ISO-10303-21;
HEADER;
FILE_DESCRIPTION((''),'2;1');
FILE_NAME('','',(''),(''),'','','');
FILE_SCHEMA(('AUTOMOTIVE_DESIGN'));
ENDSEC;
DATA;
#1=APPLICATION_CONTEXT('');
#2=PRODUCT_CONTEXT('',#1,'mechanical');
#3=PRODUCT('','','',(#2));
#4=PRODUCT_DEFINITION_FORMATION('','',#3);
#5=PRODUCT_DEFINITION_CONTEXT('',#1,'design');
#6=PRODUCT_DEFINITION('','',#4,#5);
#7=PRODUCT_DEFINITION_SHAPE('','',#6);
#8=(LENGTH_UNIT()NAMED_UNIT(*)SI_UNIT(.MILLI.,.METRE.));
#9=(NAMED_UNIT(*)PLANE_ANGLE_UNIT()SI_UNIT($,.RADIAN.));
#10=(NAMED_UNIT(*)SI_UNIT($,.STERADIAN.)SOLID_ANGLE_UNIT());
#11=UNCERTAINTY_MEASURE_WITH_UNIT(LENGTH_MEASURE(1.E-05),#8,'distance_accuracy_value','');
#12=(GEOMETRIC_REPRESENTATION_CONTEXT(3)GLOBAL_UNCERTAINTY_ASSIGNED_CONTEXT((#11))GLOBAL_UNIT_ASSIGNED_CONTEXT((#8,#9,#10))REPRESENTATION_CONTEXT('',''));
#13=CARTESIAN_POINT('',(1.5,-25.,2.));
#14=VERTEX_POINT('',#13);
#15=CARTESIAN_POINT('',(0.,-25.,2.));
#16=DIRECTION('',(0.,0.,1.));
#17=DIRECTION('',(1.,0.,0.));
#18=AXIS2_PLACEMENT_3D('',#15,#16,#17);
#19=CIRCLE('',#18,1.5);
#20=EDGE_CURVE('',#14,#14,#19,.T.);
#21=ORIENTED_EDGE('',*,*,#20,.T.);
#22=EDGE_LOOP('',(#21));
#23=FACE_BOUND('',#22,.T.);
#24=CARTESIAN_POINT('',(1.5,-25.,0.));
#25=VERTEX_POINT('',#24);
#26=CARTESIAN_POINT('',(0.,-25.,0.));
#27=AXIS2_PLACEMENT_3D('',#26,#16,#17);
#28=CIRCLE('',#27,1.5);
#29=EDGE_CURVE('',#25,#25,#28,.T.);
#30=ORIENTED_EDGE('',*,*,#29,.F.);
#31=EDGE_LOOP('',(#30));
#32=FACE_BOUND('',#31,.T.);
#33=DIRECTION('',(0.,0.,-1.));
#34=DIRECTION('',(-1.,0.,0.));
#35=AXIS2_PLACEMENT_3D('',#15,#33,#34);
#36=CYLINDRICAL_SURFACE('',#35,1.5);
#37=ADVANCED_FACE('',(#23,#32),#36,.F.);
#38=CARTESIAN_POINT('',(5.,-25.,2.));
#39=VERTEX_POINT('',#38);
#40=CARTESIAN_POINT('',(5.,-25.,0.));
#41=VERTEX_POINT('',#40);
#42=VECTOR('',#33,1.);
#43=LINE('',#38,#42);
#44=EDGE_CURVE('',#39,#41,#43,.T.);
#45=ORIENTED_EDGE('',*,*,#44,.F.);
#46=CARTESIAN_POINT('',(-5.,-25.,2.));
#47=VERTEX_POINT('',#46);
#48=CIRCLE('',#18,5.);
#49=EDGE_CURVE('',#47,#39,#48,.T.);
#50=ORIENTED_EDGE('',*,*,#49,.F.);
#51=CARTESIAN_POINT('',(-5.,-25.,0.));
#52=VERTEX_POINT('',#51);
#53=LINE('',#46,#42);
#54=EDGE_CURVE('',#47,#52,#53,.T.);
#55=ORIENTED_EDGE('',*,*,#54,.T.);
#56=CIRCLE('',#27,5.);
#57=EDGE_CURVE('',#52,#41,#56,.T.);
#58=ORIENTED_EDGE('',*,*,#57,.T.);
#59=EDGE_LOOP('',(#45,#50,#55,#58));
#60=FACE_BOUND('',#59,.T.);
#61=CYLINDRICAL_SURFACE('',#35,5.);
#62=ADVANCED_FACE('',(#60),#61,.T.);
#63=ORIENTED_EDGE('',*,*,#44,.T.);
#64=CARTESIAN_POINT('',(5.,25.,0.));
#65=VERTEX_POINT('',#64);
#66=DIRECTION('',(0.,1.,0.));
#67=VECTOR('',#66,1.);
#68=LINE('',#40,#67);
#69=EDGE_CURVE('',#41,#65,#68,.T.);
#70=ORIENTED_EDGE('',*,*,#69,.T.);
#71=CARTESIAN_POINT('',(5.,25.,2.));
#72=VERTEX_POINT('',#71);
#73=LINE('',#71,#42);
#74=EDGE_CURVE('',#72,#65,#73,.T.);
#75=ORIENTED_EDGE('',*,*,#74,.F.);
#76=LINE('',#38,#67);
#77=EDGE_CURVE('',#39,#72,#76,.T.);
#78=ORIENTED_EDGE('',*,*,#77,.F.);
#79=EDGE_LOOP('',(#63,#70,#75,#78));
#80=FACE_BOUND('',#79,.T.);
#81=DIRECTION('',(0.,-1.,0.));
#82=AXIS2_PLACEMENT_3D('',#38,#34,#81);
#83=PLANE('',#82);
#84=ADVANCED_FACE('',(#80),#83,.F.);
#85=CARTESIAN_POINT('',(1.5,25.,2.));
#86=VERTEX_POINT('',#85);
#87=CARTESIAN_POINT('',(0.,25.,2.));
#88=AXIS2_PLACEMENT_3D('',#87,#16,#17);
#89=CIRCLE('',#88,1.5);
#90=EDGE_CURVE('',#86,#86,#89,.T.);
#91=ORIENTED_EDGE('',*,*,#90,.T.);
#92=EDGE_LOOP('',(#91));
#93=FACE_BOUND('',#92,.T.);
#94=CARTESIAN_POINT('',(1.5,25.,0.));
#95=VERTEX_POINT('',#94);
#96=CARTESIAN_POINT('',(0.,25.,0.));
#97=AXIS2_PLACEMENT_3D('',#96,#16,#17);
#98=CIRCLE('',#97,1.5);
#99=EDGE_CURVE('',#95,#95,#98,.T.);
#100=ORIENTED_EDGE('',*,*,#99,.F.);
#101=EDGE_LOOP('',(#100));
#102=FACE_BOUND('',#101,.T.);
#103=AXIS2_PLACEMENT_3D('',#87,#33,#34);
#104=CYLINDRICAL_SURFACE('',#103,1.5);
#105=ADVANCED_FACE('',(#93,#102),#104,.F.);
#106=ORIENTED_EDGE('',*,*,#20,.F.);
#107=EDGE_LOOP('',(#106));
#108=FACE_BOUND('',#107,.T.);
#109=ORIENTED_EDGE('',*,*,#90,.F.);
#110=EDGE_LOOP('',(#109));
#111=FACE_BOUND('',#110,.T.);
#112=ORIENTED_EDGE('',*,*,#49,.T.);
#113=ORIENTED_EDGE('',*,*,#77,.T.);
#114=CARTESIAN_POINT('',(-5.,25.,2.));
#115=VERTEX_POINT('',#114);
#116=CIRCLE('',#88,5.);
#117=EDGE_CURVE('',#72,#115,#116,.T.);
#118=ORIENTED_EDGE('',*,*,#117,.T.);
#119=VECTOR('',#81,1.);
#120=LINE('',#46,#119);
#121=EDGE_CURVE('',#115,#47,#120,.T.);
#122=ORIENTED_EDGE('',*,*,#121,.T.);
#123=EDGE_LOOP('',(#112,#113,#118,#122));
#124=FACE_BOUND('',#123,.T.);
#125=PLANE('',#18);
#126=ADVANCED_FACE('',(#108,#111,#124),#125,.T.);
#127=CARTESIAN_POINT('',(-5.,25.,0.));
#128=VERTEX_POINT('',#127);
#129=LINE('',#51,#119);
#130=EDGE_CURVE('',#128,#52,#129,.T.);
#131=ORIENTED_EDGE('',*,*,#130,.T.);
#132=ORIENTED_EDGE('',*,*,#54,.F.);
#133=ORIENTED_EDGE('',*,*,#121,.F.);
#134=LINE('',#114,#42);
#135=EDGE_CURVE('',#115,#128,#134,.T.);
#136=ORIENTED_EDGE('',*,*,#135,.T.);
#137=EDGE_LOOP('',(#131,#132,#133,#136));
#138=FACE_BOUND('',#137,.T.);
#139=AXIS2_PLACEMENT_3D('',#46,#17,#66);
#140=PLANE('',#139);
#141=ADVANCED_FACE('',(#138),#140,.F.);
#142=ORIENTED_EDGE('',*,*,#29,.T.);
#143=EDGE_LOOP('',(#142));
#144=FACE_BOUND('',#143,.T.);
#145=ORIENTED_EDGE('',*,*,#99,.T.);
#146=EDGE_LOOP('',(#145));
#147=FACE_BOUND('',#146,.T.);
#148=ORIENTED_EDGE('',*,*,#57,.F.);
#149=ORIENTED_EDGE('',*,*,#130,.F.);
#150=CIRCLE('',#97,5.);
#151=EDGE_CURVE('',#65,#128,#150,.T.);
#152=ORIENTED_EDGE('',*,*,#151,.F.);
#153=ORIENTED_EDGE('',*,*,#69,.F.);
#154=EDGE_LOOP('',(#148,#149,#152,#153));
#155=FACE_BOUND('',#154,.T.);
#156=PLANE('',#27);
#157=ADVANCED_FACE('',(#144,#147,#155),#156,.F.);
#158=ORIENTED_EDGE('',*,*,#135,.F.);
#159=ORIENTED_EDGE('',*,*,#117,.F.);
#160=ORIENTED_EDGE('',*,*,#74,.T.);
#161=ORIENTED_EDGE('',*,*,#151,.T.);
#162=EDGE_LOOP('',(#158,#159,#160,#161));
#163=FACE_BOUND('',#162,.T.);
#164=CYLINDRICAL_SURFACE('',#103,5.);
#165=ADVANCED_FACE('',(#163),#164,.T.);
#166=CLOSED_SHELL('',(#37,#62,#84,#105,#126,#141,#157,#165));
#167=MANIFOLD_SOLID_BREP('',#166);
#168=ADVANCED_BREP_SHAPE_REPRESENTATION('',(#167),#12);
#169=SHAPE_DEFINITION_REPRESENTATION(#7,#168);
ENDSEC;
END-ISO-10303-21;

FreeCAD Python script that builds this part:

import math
import FreeCAD as App
import Part
import Sketcher
Q = App.Units.Quantity

doc = App.newDocument("Part")
params = doc.addObject("Spreadsheet::Sheet", "Params")
for row, (alias, value) in enumerate([
    ("sketch1_diameter", "3 mm"),
    ("sketch1_radius", "5 mm"),
    ("sketch1_height", "50 mm"),
    ("pad1_length", "2 mm"),
], start=1):
    params.set(f"A{row}", alias)
    params.set(f"B{row}", "=" + value)
    params.setAlias(f"B{row}", alias)

body = doc.addObject("PartDesign::Body", "Body")

sketch1 = doc.addObject("Sketcher::SketchObject", "Sketch")
body.addObject(sketch1)
sketch1.AttachmentSupport = (doc.XY_Plane, [""])
sketch1.MapMode = "FlatFace"
sketch1.addGeometry([
    Part.LineSegment(App.Vector(-5, 25, 0), App.Vector(-5, -25, 0)),
    Part.ArcOfCircle(Part.Circle(App.Vector(0, -25, 0), App.Vector(0, 0, 1), 5), math.radians(180), math.radians(360)),
    Part.LineSegment(App.Vector(5, -25, 0), App.Vector(5, 25, 0)),
    Part.ArcOfCircle(Part.Circle(App.Vector(0, 25, 0), App.Vector(0, 0, 1), 5), math.radians(0), math.radians(180)),
    Part.Circle(App.Vector(0, -25, 0), App.Vector(0, 0, 1), 1.5),
    Part.Circle(App.Vector(0, 25, 0), App.Vector(0, 0, 1), 1.5),
], False)
sketch1.addConstraint([
    Sketcher.Constraint("Tangent", 0, 2, 1, 1),
    Sketcher.Constraint("Tangent", 1, 2, 2, 1),
    Sketcher.Constraint("Tangent", 2, 2, 3, 1),
    Sketcher.Constraint("Tangent", 3, 2, 0, 1),
    Sketcher.Constraint("Vertical", 0),
    Sketcher.Constraint("Vertical", 2),
    Sketcher.Constraint("Coincident", 4, 3, 1, 3),
    Sketcher.Constraint("Coincident", 5, 3, 3, 3),
    Sketcher.Constraint("Equal", 4, 5),
    Sketcher.Constraint("Symmetric", 1, 3, 3, 3, -1, 1),
    Sketcher.Constraint("Diameter", 4, Q("3 mm")),
    Sketcher.Constraint("Radius", 1, Q("5 mm")),
    Sketcher.Constraint("DistanceY", 0, 2, 0, 1, Q("50 mm")),
])
sketch1.setExpression("Constraints[10]", "Params.sketch1_diameter")
sketch1.setExpression("Constraints[11]", "Params.sketch1_radius")
sketch1.setExpression("Constraints[12]", "Params.sketch1_height")
pad1 = doc.addObject("PartDesign::Pad", "Pad")
body.addObject(pad1)
pad1.Profile = sketch1
pad1.setExpression("Length", "Params.pad1_length")

doc.recompute()
